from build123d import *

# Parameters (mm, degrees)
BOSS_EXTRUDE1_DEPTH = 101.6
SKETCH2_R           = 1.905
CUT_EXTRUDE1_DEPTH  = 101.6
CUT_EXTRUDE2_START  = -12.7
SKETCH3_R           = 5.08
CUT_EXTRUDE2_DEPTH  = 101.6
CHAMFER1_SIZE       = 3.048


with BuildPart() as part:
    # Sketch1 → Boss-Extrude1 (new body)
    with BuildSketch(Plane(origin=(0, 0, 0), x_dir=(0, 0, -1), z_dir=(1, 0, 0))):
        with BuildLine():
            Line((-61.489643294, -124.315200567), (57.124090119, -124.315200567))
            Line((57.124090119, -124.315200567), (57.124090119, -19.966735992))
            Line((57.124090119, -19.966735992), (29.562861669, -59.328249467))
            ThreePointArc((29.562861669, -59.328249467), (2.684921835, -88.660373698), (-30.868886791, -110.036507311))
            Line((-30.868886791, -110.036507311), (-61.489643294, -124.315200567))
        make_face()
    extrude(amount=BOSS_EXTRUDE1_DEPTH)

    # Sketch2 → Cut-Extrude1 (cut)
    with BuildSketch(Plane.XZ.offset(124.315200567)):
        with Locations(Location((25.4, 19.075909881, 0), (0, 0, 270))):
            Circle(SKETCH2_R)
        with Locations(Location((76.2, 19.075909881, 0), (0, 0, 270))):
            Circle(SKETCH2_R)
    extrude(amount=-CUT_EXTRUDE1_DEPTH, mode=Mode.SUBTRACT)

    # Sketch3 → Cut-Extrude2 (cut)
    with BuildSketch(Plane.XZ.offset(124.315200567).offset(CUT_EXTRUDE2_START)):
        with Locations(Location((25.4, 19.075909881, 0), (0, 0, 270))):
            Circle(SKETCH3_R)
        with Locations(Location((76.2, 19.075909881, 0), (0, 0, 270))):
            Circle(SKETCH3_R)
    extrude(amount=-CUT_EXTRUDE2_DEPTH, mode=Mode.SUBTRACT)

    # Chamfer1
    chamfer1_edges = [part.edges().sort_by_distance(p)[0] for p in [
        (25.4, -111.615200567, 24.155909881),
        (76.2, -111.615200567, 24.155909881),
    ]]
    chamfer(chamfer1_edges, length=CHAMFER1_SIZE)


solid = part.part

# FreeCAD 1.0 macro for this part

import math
import FreeCAD as App
import Part
import Sketcher
from FreeCAD import Vector
Q = App.Units.Quantity


def edges_at(feature, points):
    """Names of the edges that pass closest to the given points."""
    edges = feature.Shape.Edges
    near = lambda p: min(range(len(edges)), key=lambda i: edges[i].distToShape(Part.Vertex(*p))[0])
    return sorted({f"Edge{near(p) + 1}" for p in points})

doc = App.newDocument("Part")
body = doc.addObject("PartDesign::Body", "Body")

# Sketch on YZ plane
sketch1 = body.newObject("Sketcher::SketchObject", "Sketch")
sketch1.AttachmentSupport = (doc.getObject("YZ_Plane"), [""])
sketch1.MapMode = "FlatFace"
sketch1.addGeometry(Part.LineSegment(Vector(-124.315201, 61.489643, 0), Vector(-124.315201, -57.12409, 0)), False)
sketch1.addGeometry(Part.LineSegment(Vector(-124.315201, -57.12409, 0), Vector(-19.966736, -57.12409, 0)), False)
sketch1.addGeometry(Part.LineSegment(Vector(-19.966736, -57.12409, 0), Vector(-59.328249, -29.562862, 0)), False)
sketch1.addGeometry(Part.ArcOfCircle(Part.Circle(Vector(28.084799, 95.27591, 0), Vector(0, 0, 1), 152.4), math.radians(-155), math.radians(-125)), False)
sketch1.addGeometry(Part.LineSegment(Vector(-110.036507, 30.868887, 0), Vector(-124.315201, 61.489643, 0)), False)
sketch1.addConstraint(Sketcher.Constraint("Coincident", 0, 2, 1, 1))
sketch1.addConstraint(Sketcher.Constraint("Coincident", 1, 2, 2, 1))
sketch1.addConstraint(Sketcher.Constraint("Tangent", 2, 2, 3, 2))
sketch1.addConstraint(Sketcher.Constraint("Tangent", 3, 1, 4, 1))
sketch1.addConstraint(Sketcher.Constraint("Coincident", 4, 2, 0, 1))
sketch1.addConstraint(Sketcher.Constraint("Vertical", 0))
sketch1.addConstraint(Sketcher.Constraint("Horizontal", 1))
sketch1.addConstraint(Sketcher.Constraint("Radius", 3, Q("6 in")))
sketch1.addConstraint(Sketcher.Constraint("Angle", 2, Q("145 deg")))
sketch1.addConstraint(Sketcher.Constraint("Angle", 4, Q("115 deg")))
sketch1.addConstraint(Sketcher.Constraint("DistanceX", 0, 2, 3, 3, Q("6 in")))
sketch1.addConstraint(Sketcher.Constraint("DistanceY", 0, 2, 3, 3, Q("6 in")))
sketch1.addConstraint(Sketcher.Constraint("DistanceX", -1, 1, 3, 3, Q("28.084799 mm")))
sketch1.addConstraint(Sketcher.Constraint("DistanceY", -1, 1, 3, 3, Q("95.27591 mm")))
pad1 = body.newObject("PartDesign::Pad", "Pad")
pad1.Profile = sketch1
pad1.Length = Q("4 in")

# Sketch on XZ plane
sketch2 = body.newObject("Sketcher::SketchObject", "Sketch001")
sketch2.AttachmentSupport = (doc.getObject("XZ_Plane"), [""])
sketch2.MapMode = "FlatFace"
sketch2.AttachmentOffset = App.Placement(Vector(0, 0, 124.315201), App.Rotation())
sketch2.addGeometry(Part.Circle(Vector(25.4, 19.07591, 0), Vector(0, 0, 1), 1.905), False)
sketch2.addGeometry(Part.Circle(Vector(76.2, 19.07591, 0), Vector(0, 0, 1), 1.905), False)
sketch2.addConstraint(Sketcher.Constraint("Equal", 0, 1))
sketch2.addConstraint(Sketcher.Constraint("Horizontal", 0, 3, 1, 3))
sketch2.addConstraint(Sketcher.Constraint("Diameter", 0, Q("0.15 in")))
sketch2.addConstraint(Sketcher.Constraint("DistanceX", -1, 1, 0, 3, Q("1 in")))
sketch2.addConstraint(Sketcher.Constraint("DistanceX", -1, 1, 1, 3, Q("3 in")))
sketch2.addConstraint(Sketcher.Constraint("DistanceY", -1, 1, 0, 3, Q("19.07591 mm")))
pocket1 = body.newObject("PartDesign::Pocket", "Pocket")
pocket1.Profile = sketch2
pocket1.Length = Q("4 in")

# Sketch on XZ plane
sketch3 = body.newObject("Sketcher::SketchObject", "Sketch002")
sketch3.AttachmentSupport = (doc.getObject("XZ_Plane"), [""])
sketch3.MapMode = "FlatFace"
sketch3.AttachmentOffset = App.Placement(Vector(0, 0, 111.615201), App.Rotation())
sketch3.addGeometry(Part.Circle(Vector(25.4, 19.07591, 0), Vector(0, 0, 1), 5.08), False)
sketch3.addGeometry(Part.Circle(Vector(76.2, 19.07591, 0), Vector(0, 0, 1), 5.08), False)
sketch3.addConstraint(Sketcher.Constraint("Equal", 0, 1))
sketch3.addConstraint(Sketcher.Constraint("Horizontal", 0, 3, 1, 3))
sketch3.addConstraint(Sketcher.Constraint("Diameter", 0, Q("0.4 in")))
sketch3.addConstraint(Sketcher.Constraint("DistanceX", -1, 1, 0, 3, Q("1 in")))
sketch3.addConstraint(Sketcher.Constraint("DistanceX", -1, 1, 1, 3, Q("3 in")))
sketch3.addConstraint(Sketcher.Constraint("DistanceY", -1, 1, 0, 3, Q("19.07591 mm")))
pocket2 = body.newObject("PartDesign::Pocket", "Pocket001")
pocket2.Profile = sketch3
pocket2.Length = Q("4 in")
doc.recompute()

chamfer = body.newObject("PartDesign::Chamfer", "Chamfer")
chamfer.Base = (pocket2, edges_at(pocket2, [(25.4, -111.615, 24.156), (76.2, -111.615, 24.156)]))
chamfer.Size = Q("0.12 in")

doc.recompute()
